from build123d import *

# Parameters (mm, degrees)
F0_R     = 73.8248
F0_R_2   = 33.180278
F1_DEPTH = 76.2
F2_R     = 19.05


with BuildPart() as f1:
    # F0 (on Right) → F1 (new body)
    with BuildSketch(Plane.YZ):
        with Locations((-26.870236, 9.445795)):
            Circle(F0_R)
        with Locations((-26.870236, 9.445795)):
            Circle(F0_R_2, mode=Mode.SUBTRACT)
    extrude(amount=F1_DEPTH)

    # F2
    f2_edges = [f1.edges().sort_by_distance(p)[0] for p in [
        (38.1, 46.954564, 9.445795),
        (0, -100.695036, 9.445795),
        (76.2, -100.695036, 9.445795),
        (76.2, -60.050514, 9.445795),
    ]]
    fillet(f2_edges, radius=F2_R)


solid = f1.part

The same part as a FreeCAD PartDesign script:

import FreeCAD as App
import Part
import Sketcher

V = App.Vector
Q = App.Units.Quantity


def edges_at(feature, points):
    """Names of the edges that pass closest to the given points."""
    edges = feature.Shape.Edges
    near = lambda p: min(range(len(edges)), key=lambda i: edges[i].distToShape(Part.Vertex(*p))[0])
    return sorted({f"Edge{near(p) + 1}" for p in points})

doc = App.newDocument("Part")
body = doc.addObject("PartDesign::Body", "Body")

# Sketch on YZ plane
sketch1 = body.newObject("Sketcher::SketchObject", "Sketch")
sketch1.AttachmentSupport = (doc.getObject("YZ_Plane"), [""])
sketch1.MapMode = "FlatFace"
sketch1.addGeometry([
    Part.Circle(V(-27, 9, 0), V(0, 0, 1), 74),
    Part.Circle(V(-27, 9, 0), V(0, 0, 1), 33),
], False)
sketch1.addConstraint([
    Sketcher.Constraint("Coincident", 1, 3, 0, 3),
    Sketcher.Constraint("Diameter", 0, 147.6496),
    Sketcher.Constraint("Diameter", 1, 66.360556),
    Sketcher.Constraint("DistanceX", 0, 3, -1, 1, 26.870236),
    Sketcher.Constraint("DistanceY", -1, 1, 0, 3, 9.445795),
])
pad1 = body.newObject("PartDesign::Pad", "Pad")
pad1.Profile = sketch1
pad1.Length = Q("3 in")
doc.recompute()

fillet = body.newObject("PartDesign::Fillet", "Fillet")
fillet.Base = (pad1, edges_at(pad1, [
    (38.1, 46.955, 9.446),
    (0, -100.695, 9.446),
    (76.2, -100.695, 9.446),
    (76.2, -60.051, 9.446),
]))
fillet.Radius = Q("0.75 in")

doc.recompute()
